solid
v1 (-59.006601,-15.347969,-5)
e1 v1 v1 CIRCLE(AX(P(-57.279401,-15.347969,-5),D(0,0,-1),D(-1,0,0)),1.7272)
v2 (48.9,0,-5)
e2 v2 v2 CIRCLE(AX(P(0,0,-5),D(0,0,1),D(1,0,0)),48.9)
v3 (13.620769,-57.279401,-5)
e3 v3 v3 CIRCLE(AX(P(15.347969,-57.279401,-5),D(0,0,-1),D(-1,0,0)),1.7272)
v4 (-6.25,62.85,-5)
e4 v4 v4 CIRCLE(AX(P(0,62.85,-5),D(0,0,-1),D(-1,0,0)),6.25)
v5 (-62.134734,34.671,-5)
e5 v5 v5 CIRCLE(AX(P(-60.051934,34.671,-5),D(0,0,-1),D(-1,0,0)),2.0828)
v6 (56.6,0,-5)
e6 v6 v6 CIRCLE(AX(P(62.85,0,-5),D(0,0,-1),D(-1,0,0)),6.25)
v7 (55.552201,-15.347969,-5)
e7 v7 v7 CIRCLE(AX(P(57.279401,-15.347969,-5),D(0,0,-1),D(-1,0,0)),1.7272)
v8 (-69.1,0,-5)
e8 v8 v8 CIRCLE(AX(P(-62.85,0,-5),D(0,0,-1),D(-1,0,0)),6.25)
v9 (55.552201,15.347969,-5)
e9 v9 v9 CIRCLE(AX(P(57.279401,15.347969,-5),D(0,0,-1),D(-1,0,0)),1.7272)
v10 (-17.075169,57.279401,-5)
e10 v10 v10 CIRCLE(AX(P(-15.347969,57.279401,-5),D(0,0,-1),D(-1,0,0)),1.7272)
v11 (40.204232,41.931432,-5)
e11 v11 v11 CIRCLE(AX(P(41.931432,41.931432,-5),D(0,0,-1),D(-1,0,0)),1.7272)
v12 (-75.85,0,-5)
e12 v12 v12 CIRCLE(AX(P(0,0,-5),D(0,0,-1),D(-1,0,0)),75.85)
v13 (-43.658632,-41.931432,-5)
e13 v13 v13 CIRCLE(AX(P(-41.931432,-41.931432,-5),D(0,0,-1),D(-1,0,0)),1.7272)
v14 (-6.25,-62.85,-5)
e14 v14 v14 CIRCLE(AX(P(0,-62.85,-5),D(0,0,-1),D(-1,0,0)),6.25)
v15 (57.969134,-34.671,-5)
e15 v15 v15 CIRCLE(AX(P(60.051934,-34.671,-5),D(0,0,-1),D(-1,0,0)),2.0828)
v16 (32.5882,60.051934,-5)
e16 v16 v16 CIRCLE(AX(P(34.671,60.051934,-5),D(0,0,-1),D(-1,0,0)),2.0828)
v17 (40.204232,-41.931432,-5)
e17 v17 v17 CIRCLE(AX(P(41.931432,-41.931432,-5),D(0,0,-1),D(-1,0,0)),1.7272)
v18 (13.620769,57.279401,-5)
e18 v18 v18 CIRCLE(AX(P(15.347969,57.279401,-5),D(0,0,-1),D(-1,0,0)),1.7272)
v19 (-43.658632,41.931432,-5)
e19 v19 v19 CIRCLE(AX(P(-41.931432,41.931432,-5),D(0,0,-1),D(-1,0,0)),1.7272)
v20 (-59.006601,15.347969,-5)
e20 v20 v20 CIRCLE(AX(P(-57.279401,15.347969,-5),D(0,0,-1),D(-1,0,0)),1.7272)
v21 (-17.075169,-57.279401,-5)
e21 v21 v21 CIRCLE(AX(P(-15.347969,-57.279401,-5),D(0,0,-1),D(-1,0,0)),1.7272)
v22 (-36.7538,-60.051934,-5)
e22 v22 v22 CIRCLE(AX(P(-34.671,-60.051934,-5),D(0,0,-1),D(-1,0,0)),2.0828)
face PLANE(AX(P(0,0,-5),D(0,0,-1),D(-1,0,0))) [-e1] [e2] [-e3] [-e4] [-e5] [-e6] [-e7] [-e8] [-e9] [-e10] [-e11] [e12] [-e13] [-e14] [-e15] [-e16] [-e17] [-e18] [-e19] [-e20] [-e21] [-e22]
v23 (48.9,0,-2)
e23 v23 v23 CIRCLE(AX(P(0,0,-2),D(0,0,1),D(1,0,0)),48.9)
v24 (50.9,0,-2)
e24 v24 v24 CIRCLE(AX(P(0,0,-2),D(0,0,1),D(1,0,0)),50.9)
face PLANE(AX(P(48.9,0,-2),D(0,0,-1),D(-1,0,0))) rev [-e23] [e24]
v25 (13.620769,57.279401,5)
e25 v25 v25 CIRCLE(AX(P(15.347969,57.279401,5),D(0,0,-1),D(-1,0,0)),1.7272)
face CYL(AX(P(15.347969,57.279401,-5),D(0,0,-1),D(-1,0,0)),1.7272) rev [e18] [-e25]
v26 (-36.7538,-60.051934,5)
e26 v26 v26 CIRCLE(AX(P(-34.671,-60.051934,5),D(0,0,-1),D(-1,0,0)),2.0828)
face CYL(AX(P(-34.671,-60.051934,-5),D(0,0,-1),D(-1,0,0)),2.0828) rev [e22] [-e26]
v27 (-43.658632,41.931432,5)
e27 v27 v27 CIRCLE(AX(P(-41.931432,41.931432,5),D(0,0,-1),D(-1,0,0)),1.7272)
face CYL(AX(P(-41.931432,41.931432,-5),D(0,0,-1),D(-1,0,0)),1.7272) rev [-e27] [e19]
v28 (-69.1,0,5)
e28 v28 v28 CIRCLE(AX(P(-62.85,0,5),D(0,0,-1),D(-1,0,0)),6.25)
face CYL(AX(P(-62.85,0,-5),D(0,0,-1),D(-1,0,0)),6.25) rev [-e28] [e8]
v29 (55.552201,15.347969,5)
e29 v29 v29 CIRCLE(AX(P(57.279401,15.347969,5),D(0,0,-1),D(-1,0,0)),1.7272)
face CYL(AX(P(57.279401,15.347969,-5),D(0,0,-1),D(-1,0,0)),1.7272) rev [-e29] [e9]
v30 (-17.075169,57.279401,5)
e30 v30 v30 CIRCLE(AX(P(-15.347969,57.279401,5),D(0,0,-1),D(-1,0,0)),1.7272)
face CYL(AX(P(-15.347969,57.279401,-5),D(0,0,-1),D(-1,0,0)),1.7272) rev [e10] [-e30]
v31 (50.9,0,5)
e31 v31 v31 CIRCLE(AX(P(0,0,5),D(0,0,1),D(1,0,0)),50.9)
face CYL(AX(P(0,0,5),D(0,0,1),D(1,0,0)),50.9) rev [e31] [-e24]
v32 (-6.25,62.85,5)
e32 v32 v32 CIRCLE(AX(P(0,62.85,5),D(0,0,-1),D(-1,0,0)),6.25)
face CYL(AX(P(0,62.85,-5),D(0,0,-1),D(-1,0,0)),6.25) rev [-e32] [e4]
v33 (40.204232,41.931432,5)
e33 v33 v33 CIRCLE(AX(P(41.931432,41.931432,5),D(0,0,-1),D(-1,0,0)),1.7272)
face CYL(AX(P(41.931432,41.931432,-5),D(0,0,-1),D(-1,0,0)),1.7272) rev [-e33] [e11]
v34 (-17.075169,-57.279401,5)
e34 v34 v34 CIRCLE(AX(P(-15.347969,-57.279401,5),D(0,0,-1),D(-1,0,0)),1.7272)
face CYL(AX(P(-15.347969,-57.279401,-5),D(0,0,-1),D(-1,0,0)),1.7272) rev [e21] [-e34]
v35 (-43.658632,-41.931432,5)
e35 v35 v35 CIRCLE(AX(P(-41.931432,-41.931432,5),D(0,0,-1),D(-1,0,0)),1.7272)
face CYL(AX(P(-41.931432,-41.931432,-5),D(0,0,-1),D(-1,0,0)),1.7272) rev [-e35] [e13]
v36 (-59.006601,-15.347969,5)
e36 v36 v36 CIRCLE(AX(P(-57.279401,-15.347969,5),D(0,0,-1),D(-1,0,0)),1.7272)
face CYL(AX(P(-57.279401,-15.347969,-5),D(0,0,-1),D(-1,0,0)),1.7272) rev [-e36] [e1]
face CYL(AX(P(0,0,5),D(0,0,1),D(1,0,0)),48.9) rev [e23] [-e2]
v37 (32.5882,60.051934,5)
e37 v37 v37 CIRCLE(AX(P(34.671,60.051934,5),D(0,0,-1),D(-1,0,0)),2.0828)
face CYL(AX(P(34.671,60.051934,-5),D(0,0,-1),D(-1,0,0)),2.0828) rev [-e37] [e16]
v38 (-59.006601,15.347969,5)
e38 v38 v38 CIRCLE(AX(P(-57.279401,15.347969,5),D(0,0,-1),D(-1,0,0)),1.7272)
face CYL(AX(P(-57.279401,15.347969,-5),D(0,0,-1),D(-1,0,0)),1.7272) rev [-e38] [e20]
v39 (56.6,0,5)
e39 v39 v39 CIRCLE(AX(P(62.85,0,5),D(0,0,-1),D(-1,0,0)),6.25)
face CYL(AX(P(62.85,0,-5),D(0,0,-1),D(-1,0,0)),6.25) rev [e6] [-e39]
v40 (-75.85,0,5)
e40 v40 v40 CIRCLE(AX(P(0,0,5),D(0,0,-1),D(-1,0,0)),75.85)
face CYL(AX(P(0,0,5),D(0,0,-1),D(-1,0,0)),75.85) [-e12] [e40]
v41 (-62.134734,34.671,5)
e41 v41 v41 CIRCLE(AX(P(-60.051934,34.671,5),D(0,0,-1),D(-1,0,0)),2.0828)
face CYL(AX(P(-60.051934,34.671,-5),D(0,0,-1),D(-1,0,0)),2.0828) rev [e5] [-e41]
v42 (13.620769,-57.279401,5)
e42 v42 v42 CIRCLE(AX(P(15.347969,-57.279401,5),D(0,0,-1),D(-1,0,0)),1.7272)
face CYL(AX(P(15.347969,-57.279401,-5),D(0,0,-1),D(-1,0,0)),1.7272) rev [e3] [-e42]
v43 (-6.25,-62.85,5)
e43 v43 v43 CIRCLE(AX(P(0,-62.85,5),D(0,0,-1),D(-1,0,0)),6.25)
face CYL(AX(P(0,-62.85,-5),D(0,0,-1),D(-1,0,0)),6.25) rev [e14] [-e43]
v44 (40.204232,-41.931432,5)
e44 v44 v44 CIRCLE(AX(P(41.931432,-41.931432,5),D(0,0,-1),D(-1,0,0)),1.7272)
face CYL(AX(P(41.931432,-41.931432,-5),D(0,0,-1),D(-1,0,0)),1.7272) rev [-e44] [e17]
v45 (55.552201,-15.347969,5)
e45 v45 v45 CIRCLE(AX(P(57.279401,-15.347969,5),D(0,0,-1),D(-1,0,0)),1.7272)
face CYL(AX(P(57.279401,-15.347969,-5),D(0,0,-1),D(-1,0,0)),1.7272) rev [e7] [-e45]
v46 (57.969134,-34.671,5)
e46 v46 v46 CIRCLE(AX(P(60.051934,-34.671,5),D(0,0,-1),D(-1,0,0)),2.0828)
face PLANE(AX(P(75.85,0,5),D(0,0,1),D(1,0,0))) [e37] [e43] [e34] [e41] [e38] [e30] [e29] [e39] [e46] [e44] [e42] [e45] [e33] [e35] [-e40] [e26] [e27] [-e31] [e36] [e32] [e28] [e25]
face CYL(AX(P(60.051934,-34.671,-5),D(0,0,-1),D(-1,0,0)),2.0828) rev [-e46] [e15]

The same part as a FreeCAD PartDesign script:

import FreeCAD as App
import Part
import Sketcher

V = App.Vector
Q = App.Units.Quantity


def add_polygon(sketch, points):
    """Adds a closed chain of lines whose ends are joined by coincident constraints."""
    first, n = sketch.GeometryCount, len(points)
    for a, b in zip(points, points[1:] + points[:1]):
        sketch.addGeometry(Part.LineSegment(App.Vector(*a, 0), App.Vector(*b, 0)), False)
    for i in range(n):
        sketch.addConstraint(Sketcher.Constraint("Coincident", first + i, 2, first + (i + 1) % n, 1))

doc = App.newDocument("Part")
body = doc.addObject("PartDesign::Body", "Body")

# Sketch on XZ plane
sketch1 = body.newObject("Sketcher::SketchObject", "Sketch")
sketch1.AttachmentSupport = (doc.getObject("XZ_Plane"), [""])
sketch1.MapMode = "FlatFace"
add_polygon(sketch1, [(0, 5), (0, -5), (75.85, -5), (75.85, 5)])  # lines 0-3
sketch1.addConstraint([
    Sketcher.Constraint("Vertical", 0),
    Sketcher.Constraint("Horizontal", 1),
    Sketcher.Constraint("Vertical", 2),
    Sketcher.Constraint("Horizontal", 3),
    Sketcher.Constraint("Symmetric", 0, 2, 3, 2, -1, 1),
    Sketcher.Constraint("DistanceY", 0, 2, 0, 1, Q("10 mm")),
    Sketcher.Constraint("DistanceX", 1, 1, 1, 2, Q("75.85 mm")),
])
revolution = body.newObject("PartDesign::Revolution", "Revolution")
revolution.Profile = sketch1
revolution.ReferenceAxis = (sketch1, ["V_Axis"])
revolution.Angle = 360

# Sketch on XY plane
sketch2 = body.newObject("Sketcher::SketchObject", "Sketch001")
sketch2.AttachmentSupport = (doc.getObject("XY_Plane"), [""])
sketch2.MapMode = "FlatFace"
sketch2.AttachmentOffset = App.Placement(V(0, 0, -5), App.Rotation())
sketch2.addGeometry([
    Part.Circle(V(-60.051934, 34.671, 0), V(0, 0, 1), 2.0828),
    Part.Circle(V(34.671, 60.051934, 0), V(0, 0, 1), 2.0828),
    Part.Circle(V(60.051934, -34.671, 0), V(0, 0, 1), 2.0828),
    Part.Circle(V(-34.671, -60.051934, 0), V(0, 0, 1), 2.0828),
], False)
sketch2.addConstraint([
    Sketcher.Constraint("Equal", 0, 1),
    Sketcher.Constraint("Equal", 1, 2),
    Sketcher.Constraint("Equal", 2, 3),
    Sketcher.Constraint("Symmetric", 0, 3, 2, 3, -1, 1),
    Sketcher.Constraint("Symmetric", 1, 3, 3, 3, -1, 1),
    Sketcher.Constraint("Diameter", 0, Q("4.1656 mm")),
    Sketcher.Constraint("DistanceY", -1, 1, 0, 3, Q("34.671 mm")),
    Sketcher.Constraint("DistanceX", -1, 1, 1, 3, Q("34.671 mm")),
    Sketcher.Constraint("DistanceX", 0, 3, -1, 1, Q("60.051934 mm")),
    Sketcher.Constraint("DistanceY", -1, 1, 1, 3, Q("60.051934 mm")),
])
doc.recompute()
hole = body.newObject("PartDesign::Hole", "Hole")
hole.Profile = sketch2
hole.ThreadType = "None"
hole.Diameter = 4.1656
hole.DepthType = "Dimension"
hole.Depth = 10
hole.DrillPoint = "Flat"
hole.Reversed = True

# Sketch on XY plane
sketch3 = body.newObject("Sketcher::SketchObject", "Sketch002")
sketch3.AttachmentSupport = (doc.getObject("XY_Plane"), [""])
sketch3.MapMode = "FlatFace"
sketch3.AttachmentOffset = App.Placement(V(0, 0, -5), App.Rotation())
sketch3.addGeometry([
    Part.Circle(V(-41.931432, 41.931432, 0), V(0, 0, 1), 1.7272),  # 0
    Part.Circle(V(-57.279401, 15.347969, 0), V(0, 0, 1), 1.7272),  # 1
    Part.Circle(V(-57.279401, -15.347969, 0), V(0, 0, 1), 1.7272),  # 2
    Part.Circle(V(-41.931432, -41.931432, 0), V(0, 0, 1), 1.7272),  # 3
    Part.Circle(V(-15.347969, -57.279401, 0), V(0, 0, 1), 1.7272),  # 4
    Part.Circle(V(15.347969, -57.279401, 0), V(0, 0, 1), 1.7272),  # 5
    Part.Circle(V(41.931432, -41.931432, 0), V(0, 0, 1), 1.7272),  # 6
    Part.Circle(V(57.279401, -15.347969, 0), V(0, 0, 1), 1.7272),  # 7
    Part.Circle(V(57.279401, 15.347969, 0), V(0, 0, 1), 1.7272),  # 8
    Part.Circle(V(41.931432, 41.931432, 0), V(0, 0, 1), 1.7272),  # 9
    Part.Circle(V(15.347969, 57.279401, 0), V(0, 0, 1), 1.7272),  # 10
    Part.Circle(V(-15.347969, 57.279401, 0), V(0, 0, 1), 1.7272),  # 11
], False)
sketch3.addConstraint([
    Sketcher.Constraint("Equal", 0, 1),
    Sketcher.Constraint("Equal", 1, 2),
    Sketcher.Constraint("Equal", 2, 3),
    Sketcher.Constraint("Equal", 3, 4),
    Sketcher.Constraint("Equal", 4, 5),
    Sketcher.Constraint("Equal", 5, 6),
    Sketcher.Constraint("Equal", 6, 7),
    Sketcher.Constraint("Equal", 7, 8),
    Sketcher.Constraint("Equal", 8, 9),
    Sketcher.Constraint("Equal", 9, 10),
    Sketcher.Constraint("Equal", 10, 11),
    Sketcher.Constraint("Symmetric", 0, 3, 6, 3, -1, 1),
    Sketcher.Constraint("Symmetric", 1, 3, 7, 3, -1, 1),
    Sketcher.Constraint("Symmetric", 2, 3, 8, 3, -1, 1),
    Sketcher.Constraint("Symmetric", 3, 3, 9, 3, -1, 1),
    Sketcher.Constraint("Symmetric", 4, 3, 10, 3, -1, 1),
    Sketcher.Constraint("Symmetric", 5, 3, 11, 3, -1, 1),
    Sketcher.Constraint("Symmetric", 4, 3, 5, 3, -2),
    Sketcher.Constraint("Symmetric", 3, 3, 6, 3, -2),
    Sketcher.Constraint("Symmetric", 2, 3, 7, 3, -2),
    Sketcher.Constraint("Diameter", 0, Q("3.4544 mm")),
    Sketcher.Constraint("DistanceX", 1, 3, -1, 1, Q("57.279401 mm")),
    Sketcher.Constraint("DistanceY", 4, 3, -1, 1, Q("57.279401 mm")),
    Sketcher.Constraint("DistanceY", 2, 3, 0, 3, Q("57.279401 mm")),
    Sketcher.Constraint("DistanceX", 3, 3, 5, 3, Q("57.279401 mm")),
    Sketcher.Constraint("DistanceY", -1, 1, 1, 3, Q("15.347969 mm")),
    Sketcher.Constraint("DistanceX", 4, 3, -1, 1, Q("15.347969 mm")),
])
doc.recompute()
hole2 = body.newObject("PartDesign::Hole", "Hole001")
hole2.Profile = sketch3
hole2.ThreadType = "None"
hole2.Diameter = 3.4544
hole2.DepthType = "Dimension"
hole2.Depth = 10
hole2.DrillPoint = "Flat"
hole2.Reversed = True

# Sketch on XY plane
sketch4 = body.newObject("Sketcher::SketchObject", "Sketch003")
sketch4.AttachmentSupport = (doc.getObject("XY_Plane"), [""])
sketch4.MapMode = "FlatFace"
sketch4.AttachmentOffset = App.Placement(V(0, 0, -5), App.Rotation())
sketch4.addGeometry([
    Part.Circle(V(-62.85, 0, 0), V(0, 0, 1), 6.25),
    Part.Circle(V(0, -62.85, 0), V(0, 0, 1), 6.25),
    Part.Circle(V(62.85, 0, 0), V(0, 0, 1), 6.25),
    Part.Circle(V(0, 62.85, 0), V(0, 0, 1), 6.25),
], False)
sketch4.addConstraint([
    Sketcher.Constraint("Equal", 0, 1),
    Sketcher.Constraint("Equal", 1, 2),
    Sketcher.Constraint("Equal", 2, 3),
    Sketcher.Constraint("Symmetric", 0, 3, 2, 3, -1, 1),
    Sketcher.Constraint("Symmetric", 1, 3, 3, 3, -1, 1),
    Sketcher.Constraint("PointOnObject", 0, 3, -1),
    Sketcher.Constraint("PointOnObject", 1, 3, -2),
    Sketcher.Constraint("Diameter", 0, Q("12.5 mm")),
    Sketcher.Constraint("DistanceX", 0, 3, 2, 3, Q("125.7 mm")),
    Sketcher.Constraint("DistanceY", 1, 3, 3, 3, Q("125.7 mm")),
])
doc.recompute()
hole3 = body.newObject("PartDesign::Hole", "Hole002")
hole3.Profile = sketch4
hole3.ThreadType = "None"
hole3.Diameter = 12.5
hole3.DepthType = "Dimension"
hole3.Depth = 10
hole3.DrillPoint = "Flat"
hole3.Reversed = True

# Sketch on XY plane
sketch5 = body.newObject("Sketcher::SketchObject", "Sketch004")
sketch5.AttachmentSupport = (doc.getObject("XY_Plane"), [""])
sketch5.MapMode = "FlatFace"
sketch5.AttachmentOffset = App.Placement(V(0, 0, 5), App.Rotation())
sketch5.addGeometry(Part.Circle(V(0, 0, 0), V(0, 0, 1), 48.9), False)
sketch5.addConstraint([
    Sketcher.Constraint("Coincident", 0, 3, -1, 1),
    Sketcher.Constraint("Diameter", 0, Q("97.8 mm")),
])
doc.recompute()
hole4 = body.newObject("PartDesign::Hole", "Hole003")
hole4.Profile = sketch5
hole4.ThreadType = "None"
hole4.Diameter = 97.8
hole4.DepthType = "Dimension"
hole4.Depth = 10
hole4.DrillPoint = "Flat"
hole4.HoleCutType = "Counterbore"
hole4.HoleCutDiameter = 101.8
hole4.HoleCutDepth = 7

doc.recompute()
